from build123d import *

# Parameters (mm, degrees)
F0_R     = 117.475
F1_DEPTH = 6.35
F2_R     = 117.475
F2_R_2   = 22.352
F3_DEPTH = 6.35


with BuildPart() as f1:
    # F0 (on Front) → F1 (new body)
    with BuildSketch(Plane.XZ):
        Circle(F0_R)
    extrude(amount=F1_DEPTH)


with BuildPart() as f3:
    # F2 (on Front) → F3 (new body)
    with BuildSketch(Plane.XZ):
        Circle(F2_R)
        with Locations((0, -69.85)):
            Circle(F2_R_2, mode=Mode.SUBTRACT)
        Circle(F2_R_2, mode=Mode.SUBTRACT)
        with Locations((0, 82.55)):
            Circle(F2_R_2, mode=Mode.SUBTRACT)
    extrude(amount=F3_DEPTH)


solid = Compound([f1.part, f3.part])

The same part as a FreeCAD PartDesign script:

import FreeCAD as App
import Part
import Sketcher
Q = App.Units.Quantity

doc = App.newDocument("Part")
body = doc.addObject("PartDesign::Body", "Body")

sketch1 = body.newObject("Sketcher::SketchObject", "Sketch")
sketch1.AttachmentSupport = (doc.getObject("XZ_Plane"), [""])
sketch1.MapMode = "FlatFace"
sketch1.addGeometry(Part.Circle(App.Vector(0, 0, 0), App.Vector(0, 0, 1), 117.475), False)
sketch1.addConstraint([
    Sketcher.Constraint("Coincident", 0, 3, -1, 1),
    Sketcher.Constraint("Diameter", 0, Q("9.25 in")),
])
pad1 = body.newObject("PartDesign::Pad", "Pad")
pad1.Profile = sketch1
pad1.Length = Q("0.25 in")
body2 = doc.addObject("PartDesign::Body", "Body001")

sketch2 = body2.newObject("Sketcher::SketchObject", "Sketch001")
sketch2.AttachmentSupport = (doc.getObject("XZ_Plane001"), [""])
sketch2.MapMode = "FlatFace"
sketch2.addGeometry([
    Part.Circle(App.Vector(0, 0, 0), App.Vector(0, 0, 1), 117.475),
    Part.Circle(App.Vector(0, -69.85, 0), App.Vector(0, 0, 1), 22.352),
    Part.Circle(App.Vector(0, 0, 0), App.Vector(0, 0, 1), 22.352),
    Part.Circle(App.Vector(0, 82.55, 0), App.Vector(0, 0, 1), 22.352),
], False)
sketch2.addConstraint([
    Sketcher.Constraint("Coincident", 0, 3, -1, 1),
    Sketcher.Constraint("Coincident", 2, 3, -1, 1),
    Sketcher.Constraint("Equal", 1, 2),
    Sketcher.Constraint("Equal", 2, 3),
    Sketcher.Constraint("PointOnObject", 1, 3, -2),
    Sketcher.Constraint("PointOnObject", 3, 3, -2),
    Sketcher.Constraint("Diameter", 0, Q("9.25 in")),
    Sketcher.Constraint("Diameter", 1, Q("1.76 in")),
    Sketcher.Constraint("DistanceY", 1, 3, 3, 3, Q("6 in")),
    Sketcher.Constraint("DistanceY", 1, 3, -1, 1, Q("2.75 in")),
])
pad2 = body2.newObject("PartDesign::Pad", "Pad001")
pad2.Profile = sketch2
pad2.Length = Q("0.25 in")

doc.recompute()
